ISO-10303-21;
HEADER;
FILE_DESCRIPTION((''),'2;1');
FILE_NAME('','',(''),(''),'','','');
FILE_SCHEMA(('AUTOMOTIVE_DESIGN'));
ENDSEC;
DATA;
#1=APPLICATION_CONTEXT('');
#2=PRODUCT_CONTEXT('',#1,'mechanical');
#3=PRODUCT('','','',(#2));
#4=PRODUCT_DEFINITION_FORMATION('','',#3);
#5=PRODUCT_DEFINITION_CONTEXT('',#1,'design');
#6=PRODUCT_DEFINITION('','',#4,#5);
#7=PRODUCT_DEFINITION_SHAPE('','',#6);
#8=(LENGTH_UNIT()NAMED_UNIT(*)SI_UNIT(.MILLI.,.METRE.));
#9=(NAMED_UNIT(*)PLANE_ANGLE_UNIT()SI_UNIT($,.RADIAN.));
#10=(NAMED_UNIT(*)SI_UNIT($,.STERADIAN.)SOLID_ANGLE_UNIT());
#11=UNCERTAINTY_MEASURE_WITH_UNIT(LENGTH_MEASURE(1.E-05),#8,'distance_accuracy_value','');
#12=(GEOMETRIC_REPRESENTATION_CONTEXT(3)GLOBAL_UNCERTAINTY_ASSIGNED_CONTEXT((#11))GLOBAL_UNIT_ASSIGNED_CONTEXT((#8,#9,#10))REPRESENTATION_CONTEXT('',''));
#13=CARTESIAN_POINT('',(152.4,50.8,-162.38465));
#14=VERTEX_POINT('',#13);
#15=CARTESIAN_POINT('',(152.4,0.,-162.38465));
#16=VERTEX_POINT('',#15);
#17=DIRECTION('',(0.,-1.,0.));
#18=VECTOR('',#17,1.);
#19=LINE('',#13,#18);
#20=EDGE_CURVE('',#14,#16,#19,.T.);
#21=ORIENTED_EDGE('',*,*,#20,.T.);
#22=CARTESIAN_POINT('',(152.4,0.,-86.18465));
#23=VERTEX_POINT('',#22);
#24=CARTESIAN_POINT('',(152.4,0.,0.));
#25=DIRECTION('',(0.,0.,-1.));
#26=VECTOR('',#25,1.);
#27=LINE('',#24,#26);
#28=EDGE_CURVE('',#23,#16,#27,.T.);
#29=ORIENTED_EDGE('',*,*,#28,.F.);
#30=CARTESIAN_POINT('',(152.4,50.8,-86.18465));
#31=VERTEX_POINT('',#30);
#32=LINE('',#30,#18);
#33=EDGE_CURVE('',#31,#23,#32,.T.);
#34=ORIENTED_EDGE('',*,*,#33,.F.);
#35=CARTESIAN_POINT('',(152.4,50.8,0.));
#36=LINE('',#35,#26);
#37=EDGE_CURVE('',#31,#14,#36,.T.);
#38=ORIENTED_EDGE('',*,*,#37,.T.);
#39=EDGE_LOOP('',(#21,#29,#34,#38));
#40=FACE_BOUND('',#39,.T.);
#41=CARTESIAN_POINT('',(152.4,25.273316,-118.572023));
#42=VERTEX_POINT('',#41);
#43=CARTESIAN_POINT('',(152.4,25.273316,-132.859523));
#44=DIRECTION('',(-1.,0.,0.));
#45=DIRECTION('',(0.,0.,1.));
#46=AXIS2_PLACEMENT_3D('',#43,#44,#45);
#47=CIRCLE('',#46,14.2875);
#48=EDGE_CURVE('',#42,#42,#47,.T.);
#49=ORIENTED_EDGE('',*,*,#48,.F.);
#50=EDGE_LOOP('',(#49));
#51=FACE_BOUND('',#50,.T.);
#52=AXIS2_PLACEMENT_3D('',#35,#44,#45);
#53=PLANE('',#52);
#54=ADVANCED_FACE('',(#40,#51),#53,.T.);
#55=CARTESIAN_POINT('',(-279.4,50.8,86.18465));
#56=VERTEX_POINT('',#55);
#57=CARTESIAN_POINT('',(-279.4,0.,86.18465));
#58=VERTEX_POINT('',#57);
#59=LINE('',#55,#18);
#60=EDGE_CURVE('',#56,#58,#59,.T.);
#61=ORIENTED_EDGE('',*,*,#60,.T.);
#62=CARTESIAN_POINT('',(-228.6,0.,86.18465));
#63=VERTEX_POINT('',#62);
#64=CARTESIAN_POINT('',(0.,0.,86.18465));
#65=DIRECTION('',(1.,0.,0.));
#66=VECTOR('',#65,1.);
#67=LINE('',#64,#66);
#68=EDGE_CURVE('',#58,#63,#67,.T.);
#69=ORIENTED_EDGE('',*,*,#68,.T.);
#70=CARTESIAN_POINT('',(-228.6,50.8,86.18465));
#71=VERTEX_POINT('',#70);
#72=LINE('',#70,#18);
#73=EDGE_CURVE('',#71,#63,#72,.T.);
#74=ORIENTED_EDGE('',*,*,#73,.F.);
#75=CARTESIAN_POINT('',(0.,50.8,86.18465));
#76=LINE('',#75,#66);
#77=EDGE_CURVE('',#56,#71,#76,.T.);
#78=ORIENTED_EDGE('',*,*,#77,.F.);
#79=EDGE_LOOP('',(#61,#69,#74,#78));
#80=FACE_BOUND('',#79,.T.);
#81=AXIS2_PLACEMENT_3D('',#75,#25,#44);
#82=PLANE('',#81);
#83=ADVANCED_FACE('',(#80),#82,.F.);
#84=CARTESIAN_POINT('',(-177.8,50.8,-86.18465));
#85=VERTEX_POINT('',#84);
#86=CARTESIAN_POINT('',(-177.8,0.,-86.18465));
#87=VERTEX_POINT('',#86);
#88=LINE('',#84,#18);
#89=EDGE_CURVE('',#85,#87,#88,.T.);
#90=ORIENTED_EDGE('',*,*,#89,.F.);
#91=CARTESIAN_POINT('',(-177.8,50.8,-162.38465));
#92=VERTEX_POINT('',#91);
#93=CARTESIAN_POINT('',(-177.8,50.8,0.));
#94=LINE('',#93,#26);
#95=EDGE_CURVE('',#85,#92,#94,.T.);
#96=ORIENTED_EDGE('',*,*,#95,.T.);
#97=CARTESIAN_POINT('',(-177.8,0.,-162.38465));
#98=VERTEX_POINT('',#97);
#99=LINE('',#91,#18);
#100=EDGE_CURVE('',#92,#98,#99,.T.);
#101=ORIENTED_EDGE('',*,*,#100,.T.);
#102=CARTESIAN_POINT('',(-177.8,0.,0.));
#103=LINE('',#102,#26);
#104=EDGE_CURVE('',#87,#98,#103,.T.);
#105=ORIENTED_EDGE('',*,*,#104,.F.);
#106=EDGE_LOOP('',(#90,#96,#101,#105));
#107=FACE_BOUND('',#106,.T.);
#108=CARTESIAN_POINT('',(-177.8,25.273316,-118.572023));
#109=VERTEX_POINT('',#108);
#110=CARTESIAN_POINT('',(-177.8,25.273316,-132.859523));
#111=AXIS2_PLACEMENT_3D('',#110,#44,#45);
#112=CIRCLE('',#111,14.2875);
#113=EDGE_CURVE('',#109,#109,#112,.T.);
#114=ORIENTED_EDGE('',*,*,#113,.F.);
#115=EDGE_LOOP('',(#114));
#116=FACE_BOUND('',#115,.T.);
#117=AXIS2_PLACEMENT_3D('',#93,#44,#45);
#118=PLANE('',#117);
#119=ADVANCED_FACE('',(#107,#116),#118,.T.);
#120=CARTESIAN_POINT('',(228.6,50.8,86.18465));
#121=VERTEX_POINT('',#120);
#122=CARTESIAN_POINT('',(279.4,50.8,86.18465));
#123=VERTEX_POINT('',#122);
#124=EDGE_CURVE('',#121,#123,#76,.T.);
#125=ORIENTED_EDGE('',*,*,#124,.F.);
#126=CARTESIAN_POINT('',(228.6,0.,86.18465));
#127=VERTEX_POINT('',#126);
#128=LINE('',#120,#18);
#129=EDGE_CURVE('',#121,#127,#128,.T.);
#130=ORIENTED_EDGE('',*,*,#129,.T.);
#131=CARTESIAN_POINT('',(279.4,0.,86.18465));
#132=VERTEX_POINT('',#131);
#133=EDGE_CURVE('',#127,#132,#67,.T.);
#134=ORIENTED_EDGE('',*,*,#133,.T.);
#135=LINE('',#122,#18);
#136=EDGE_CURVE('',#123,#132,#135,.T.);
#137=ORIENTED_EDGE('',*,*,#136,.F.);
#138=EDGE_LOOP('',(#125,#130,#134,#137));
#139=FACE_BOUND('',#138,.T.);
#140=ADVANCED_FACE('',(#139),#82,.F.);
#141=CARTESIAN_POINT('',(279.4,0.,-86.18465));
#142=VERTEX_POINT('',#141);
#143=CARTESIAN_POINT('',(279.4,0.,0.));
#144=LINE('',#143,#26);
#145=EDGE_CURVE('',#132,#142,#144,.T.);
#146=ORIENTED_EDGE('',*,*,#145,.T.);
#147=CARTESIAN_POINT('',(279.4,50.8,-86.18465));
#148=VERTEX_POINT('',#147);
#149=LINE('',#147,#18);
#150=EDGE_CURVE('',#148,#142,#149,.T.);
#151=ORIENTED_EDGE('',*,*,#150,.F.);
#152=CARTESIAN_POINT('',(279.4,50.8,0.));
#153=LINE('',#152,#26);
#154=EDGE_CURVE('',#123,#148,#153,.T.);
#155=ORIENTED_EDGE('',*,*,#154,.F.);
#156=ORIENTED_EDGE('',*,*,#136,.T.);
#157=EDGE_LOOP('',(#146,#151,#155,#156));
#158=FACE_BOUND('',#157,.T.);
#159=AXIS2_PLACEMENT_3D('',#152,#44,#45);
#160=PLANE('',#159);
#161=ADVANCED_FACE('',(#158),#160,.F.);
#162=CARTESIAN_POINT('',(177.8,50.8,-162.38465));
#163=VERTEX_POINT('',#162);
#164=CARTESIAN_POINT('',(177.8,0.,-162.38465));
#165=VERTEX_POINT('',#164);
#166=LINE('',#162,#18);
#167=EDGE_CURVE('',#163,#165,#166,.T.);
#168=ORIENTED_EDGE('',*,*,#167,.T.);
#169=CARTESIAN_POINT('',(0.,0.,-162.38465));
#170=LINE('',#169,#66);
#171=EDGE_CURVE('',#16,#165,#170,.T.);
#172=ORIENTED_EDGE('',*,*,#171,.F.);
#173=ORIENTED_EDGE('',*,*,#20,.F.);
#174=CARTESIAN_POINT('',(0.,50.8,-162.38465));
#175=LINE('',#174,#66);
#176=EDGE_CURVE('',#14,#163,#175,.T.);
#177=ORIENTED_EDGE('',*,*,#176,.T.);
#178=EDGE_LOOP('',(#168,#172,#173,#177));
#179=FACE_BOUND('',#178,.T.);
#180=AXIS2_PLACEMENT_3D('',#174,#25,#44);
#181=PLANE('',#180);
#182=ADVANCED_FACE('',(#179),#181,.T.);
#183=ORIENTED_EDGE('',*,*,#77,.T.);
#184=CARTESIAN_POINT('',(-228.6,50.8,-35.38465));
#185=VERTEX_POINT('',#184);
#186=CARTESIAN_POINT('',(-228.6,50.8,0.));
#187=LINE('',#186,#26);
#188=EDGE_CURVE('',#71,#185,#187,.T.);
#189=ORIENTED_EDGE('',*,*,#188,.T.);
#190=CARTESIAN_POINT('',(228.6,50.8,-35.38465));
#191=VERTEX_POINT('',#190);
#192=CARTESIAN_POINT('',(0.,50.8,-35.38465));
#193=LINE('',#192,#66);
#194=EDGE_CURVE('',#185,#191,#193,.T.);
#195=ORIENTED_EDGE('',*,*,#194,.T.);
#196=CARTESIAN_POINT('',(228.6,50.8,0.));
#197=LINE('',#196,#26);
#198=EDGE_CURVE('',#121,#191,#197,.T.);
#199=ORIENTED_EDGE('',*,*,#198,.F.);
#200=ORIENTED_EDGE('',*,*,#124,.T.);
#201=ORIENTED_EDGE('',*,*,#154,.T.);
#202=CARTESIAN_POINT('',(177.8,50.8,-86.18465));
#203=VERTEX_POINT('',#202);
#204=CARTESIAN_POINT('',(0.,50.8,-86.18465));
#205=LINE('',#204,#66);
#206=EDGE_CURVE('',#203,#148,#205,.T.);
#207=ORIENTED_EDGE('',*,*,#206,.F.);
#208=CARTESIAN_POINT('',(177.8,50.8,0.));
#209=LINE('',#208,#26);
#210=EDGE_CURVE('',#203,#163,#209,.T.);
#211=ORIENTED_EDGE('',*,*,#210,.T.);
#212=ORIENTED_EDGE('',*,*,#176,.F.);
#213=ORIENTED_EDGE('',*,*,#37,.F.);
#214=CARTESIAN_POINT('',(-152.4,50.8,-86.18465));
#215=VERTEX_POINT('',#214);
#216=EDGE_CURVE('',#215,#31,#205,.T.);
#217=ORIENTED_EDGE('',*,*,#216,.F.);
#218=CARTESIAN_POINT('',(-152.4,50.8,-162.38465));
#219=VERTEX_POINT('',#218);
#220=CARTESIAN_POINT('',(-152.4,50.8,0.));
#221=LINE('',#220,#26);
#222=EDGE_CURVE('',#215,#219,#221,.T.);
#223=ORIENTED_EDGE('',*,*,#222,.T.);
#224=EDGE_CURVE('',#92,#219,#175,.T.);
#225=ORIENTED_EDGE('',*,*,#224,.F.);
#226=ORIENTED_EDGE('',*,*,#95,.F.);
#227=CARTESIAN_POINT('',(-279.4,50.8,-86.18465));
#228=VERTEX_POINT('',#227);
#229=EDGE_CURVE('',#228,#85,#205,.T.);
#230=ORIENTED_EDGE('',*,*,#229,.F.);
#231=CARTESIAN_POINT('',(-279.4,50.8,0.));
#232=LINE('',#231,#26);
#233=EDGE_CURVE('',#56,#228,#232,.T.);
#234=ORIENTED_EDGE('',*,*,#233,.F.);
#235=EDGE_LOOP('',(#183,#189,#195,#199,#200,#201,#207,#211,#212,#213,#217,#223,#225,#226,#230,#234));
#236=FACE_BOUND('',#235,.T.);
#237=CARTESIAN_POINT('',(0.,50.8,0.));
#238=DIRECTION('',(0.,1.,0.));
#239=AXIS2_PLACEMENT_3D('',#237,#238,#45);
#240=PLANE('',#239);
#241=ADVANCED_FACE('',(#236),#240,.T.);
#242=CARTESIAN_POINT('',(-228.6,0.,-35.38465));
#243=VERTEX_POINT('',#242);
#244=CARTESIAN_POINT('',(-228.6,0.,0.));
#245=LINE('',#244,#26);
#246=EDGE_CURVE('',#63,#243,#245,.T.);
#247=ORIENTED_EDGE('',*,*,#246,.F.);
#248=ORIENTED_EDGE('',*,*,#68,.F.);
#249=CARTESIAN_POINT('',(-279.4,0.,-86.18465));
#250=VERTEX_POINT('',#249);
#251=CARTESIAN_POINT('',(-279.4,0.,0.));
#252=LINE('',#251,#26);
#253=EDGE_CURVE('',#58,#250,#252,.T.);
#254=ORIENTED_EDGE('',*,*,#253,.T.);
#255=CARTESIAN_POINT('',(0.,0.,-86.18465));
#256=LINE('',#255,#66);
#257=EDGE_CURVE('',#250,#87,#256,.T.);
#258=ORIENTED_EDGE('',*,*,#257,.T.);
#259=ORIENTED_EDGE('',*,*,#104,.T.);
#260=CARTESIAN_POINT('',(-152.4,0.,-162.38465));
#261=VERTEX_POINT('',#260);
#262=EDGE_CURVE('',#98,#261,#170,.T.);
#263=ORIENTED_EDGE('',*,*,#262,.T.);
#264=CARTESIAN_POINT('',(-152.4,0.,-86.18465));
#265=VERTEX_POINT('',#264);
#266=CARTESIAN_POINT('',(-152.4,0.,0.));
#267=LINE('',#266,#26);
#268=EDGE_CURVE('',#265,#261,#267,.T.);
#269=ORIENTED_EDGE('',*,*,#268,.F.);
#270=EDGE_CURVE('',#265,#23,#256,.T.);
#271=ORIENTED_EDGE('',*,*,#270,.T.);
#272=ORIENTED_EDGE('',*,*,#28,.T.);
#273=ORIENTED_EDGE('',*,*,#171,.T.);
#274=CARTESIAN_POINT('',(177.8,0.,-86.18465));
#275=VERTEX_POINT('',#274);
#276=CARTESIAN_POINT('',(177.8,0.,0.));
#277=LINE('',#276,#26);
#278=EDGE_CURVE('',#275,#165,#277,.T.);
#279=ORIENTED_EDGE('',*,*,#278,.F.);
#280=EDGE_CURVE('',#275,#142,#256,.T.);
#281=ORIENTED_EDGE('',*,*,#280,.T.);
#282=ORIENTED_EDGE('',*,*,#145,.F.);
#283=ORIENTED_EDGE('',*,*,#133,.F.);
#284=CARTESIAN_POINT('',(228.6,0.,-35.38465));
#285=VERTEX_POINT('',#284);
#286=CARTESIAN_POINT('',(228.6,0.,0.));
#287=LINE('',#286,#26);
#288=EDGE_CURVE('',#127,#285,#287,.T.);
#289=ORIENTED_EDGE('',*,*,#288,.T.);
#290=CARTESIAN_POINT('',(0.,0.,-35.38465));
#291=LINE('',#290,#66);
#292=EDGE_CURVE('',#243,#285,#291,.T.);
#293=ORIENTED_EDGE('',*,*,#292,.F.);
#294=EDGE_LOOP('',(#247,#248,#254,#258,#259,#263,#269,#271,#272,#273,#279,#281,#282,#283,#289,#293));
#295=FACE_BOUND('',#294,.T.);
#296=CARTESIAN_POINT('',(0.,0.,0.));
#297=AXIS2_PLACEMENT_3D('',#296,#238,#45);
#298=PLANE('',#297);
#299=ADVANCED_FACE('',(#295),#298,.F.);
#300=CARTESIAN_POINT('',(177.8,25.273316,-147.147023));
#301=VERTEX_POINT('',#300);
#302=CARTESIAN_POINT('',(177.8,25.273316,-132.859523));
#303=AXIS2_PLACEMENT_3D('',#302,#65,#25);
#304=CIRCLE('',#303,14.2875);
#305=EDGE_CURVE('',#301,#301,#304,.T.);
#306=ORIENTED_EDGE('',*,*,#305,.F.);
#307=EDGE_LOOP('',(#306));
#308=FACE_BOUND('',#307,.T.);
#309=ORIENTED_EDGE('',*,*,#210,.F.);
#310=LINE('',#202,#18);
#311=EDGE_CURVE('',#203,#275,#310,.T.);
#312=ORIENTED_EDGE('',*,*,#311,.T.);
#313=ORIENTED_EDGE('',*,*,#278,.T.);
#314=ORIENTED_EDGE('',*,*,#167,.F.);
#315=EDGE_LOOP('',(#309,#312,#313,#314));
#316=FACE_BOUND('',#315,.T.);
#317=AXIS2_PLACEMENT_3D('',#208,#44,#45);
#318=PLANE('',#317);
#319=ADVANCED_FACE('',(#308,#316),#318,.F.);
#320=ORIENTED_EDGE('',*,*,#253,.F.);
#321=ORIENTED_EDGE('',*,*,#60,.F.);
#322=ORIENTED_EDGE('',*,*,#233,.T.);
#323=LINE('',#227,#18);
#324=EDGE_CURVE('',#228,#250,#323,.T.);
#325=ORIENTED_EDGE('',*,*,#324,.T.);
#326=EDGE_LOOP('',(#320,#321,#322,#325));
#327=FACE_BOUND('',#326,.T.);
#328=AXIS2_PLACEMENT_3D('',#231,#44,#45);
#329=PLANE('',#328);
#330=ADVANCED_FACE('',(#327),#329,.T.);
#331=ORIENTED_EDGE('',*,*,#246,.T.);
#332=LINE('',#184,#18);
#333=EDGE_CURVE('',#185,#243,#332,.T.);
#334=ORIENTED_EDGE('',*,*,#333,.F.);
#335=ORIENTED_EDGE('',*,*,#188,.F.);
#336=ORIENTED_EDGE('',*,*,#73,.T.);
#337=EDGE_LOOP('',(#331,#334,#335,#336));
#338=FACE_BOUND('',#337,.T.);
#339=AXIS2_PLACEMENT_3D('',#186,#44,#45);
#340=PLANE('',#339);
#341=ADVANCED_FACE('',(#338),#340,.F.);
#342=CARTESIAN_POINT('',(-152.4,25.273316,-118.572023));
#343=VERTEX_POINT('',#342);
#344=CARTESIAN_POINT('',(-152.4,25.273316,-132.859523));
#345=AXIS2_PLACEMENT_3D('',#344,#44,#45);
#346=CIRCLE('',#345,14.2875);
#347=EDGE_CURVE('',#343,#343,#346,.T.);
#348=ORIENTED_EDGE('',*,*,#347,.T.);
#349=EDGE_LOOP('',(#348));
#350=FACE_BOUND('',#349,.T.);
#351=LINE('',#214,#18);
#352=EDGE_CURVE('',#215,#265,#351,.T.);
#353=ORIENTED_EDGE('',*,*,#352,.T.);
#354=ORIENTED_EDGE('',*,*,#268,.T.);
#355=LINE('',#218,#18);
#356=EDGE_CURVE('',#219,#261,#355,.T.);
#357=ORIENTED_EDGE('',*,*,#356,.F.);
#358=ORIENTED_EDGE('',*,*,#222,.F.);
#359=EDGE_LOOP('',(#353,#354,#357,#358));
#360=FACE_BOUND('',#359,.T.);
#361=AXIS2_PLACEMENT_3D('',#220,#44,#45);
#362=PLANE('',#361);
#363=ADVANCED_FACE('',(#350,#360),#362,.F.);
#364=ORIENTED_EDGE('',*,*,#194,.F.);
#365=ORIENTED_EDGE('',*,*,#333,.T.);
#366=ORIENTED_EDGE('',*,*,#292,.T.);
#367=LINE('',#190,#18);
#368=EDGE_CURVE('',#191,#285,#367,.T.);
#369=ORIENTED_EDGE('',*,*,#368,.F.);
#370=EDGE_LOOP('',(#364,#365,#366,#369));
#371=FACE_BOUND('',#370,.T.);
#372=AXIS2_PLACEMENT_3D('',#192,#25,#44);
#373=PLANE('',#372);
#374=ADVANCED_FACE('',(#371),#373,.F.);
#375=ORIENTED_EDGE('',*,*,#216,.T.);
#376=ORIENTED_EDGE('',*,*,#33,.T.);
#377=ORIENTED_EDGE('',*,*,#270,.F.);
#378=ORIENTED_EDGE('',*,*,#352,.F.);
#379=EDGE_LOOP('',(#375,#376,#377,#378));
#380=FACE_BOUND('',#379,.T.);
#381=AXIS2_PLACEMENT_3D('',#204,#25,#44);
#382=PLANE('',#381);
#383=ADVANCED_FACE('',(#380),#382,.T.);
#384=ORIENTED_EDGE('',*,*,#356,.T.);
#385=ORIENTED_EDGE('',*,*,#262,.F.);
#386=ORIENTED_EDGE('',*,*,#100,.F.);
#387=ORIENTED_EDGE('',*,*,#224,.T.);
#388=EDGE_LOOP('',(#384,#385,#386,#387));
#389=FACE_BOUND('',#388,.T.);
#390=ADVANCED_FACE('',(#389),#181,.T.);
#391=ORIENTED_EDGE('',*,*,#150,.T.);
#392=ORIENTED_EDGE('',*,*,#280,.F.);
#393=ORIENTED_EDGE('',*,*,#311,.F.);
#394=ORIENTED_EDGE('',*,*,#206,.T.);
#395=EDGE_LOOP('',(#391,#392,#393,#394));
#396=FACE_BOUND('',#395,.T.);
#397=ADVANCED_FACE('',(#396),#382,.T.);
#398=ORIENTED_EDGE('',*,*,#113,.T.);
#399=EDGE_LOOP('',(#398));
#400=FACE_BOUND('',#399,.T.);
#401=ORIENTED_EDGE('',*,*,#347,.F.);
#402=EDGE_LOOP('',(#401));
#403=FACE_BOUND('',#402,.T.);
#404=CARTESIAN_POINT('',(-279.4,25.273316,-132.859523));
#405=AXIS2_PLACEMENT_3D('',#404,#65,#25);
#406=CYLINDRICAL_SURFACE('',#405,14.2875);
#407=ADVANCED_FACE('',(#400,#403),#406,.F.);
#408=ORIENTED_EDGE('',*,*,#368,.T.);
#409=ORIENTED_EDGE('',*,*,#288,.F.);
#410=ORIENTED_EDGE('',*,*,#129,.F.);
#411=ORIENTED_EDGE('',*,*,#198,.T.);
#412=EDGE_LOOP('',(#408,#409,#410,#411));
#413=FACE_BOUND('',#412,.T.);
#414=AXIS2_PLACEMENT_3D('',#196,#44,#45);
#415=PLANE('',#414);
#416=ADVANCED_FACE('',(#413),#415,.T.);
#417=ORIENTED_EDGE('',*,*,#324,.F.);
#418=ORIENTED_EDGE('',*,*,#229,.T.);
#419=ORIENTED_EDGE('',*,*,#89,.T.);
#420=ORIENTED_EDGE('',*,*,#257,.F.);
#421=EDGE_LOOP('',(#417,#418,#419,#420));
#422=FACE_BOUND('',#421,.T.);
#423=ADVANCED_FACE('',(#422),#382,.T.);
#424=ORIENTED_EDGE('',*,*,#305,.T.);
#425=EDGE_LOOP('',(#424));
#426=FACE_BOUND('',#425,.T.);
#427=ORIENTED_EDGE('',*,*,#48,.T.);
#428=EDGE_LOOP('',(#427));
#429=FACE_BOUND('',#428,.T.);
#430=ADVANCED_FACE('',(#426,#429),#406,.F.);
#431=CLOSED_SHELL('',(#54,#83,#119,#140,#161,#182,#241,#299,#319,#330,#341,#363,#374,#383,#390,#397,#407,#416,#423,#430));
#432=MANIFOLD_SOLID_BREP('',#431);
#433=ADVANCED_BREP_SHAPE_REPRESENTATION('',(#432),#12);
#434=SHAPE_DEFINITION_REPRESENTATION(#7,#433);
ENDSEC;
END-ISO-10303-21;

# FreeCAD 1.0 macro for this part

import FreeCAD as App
import Part
import Sketcher

V = App.Vector
Q = App.Units.Quantity


def add_polygon(sketch, points):
    """Adds a closed chain of lines whose ends are joined by coincident constraints."""
    first, n = sketch.GeometryCount, len(points)
    for a, b in zip(points, points[1:] + points[:1]):
        sketch.addGeometry(Part.LineSegment(App.Vector(*a, 0), App.Vector(*b, 0)), False)
    for i in range(n):
        sketch.addConstraint(Sketcher.Constraint("Coincident", first + i, 2, first + (i + 1) % n, 1))

doc = App.newDocument("Part")
params = doc.addObject("Spreadsheet::Sheet", "Params")
for row, (alias, value) in enumerate([
    ("sketch1_width", "2 in"),
    ("sketch1_width2", "18 in"),
    ("sketch1_width3", "4 in"),
    ("sketch1_width4", "1 in"),
    ("sketch1_height", "3 in"),
    ("pad1_length", "2 in"),
    ("sketch2_diameter", "1.125 in"),
], start=1):
    params.set(f"A{row}", alias)
    params.set(f"B{row}", "=" + value)
    params.setAlias(f"B{row}", alias)

body = doc.addObject("PartDesign::Body", "Body")

sketch1 = body.newObject("Sketcher::SketchObject", "Sketch")
sketch1.AttachmentSupport = (doc.getObject("XZ_Plane"), [""])
sketch1.MapMode = "FlatFace"
add_polygon(sketch1, [(-279, -86), (-279, 86), (-229, 86), (-229, -35), (229, -35), (229, 86), (279, 86), (279, -86), (178, -86), (178, -162), (152, -162), (152, -86), (-152, -86), (-152, -162), (-178, -162), (-178, -86)])
sketch1.addConstraint([
    Sketcher.Constraint("Vertical", 0),
    Sketcher.Constraint("Horizontal", 1),
    Sketcher.Constraint("Vertical", 2),
    Sketcher.Constraint("Horizontal", 3),
    Sketcher.Constraint("Vertical", 4),
    Sketcher.Constraint("Horizontal", 5),
    Sketcher.Constraint("Vertical", 6),
    Sketcher.Constraint("Horizontal", 7),
    Sketcher.Constraint("Vertical", 8),
    Sketcher.Constraint("Horizontal", 9),
    Sketcher.Constraint("Vertical", 10),
    Sketcher.Constraint("Horizontal", 11),
    Sketcher.Constraint("Vertical", 12),
    Sketcher.Constraint("Horizontal", 13),
    Sketcher.Constraint("Vertical", 14),
    Sketcher.Constraint("Horizontal", 15),
    Sketcher.Constraint("Symmetric", 0, 2, 6, 2, -1, 1),
    Sketcher.Constraint("Symmetric", 1, 2, 4, 2, -2),
    Sketcher.Constraint("Symmetric", 9, 2, 12, 2, -2),
    Sketcher.Constraint("Symmetric", 7, 2, 14, 2, -2),
    Sketcher.Constraint("Horizontal", 7, 2, 10, 2),
    Sketcher.Constraint("DistanceX", 1, 1, 1, 2, Q("2 in")),
    Sketcher.Constraint("DistanceX", 3, 1, 3, 2, Q("18 in")),
    Sketcher.Constraint("DistanceX", 7, 2, 7, 1, Q("4 in")),
    Sketcher.Constraint("DistanceX", 9, 2, 9, 1, Q("1 in")),
    Sketcher.Constraint("DistanceY", 8, 2, 8, 1, Q("3 in")),
    Sketcher.Constraint("DistanceY", 6, 2, 3, 2, Q("2 in")),
    Sketcher.Constraint("DistanceY", 0, 1, 0, 2, Q("172.369301 mm")),
])
sketch1.setExpression("Constraints[37]", "Params.sketch1_width")
sketch1.setExpression("Constraints[38]", "Params.sketch1_width2")
sketch1.setExpression("Constraints[39]", "Params.sketch1_width3")
sketch1.setExpression("Constraints[40]", "Params.sketch1_width4")
sketch1.setExpression("Constraints[41]", "Params.sketch1_height")
pad1 = body.newObject("PartDesign::Pad", "Pad")
pad1.Profile = sketch1
pad1.setExpression("Length", "Params.pad1_length")
pad1.Reversed = True

sketch2 = body.newObject("Sketcher::SketchObject", "Sketch001")
sketch2.AttachmentSupport = (doc.getObject("YZ_Plane"), [""])
sketch2.MapMode = "FlatFace"
sketch2.AttachmentOffset = App.Placement(V(0, 0, 7 * 25.4), App.Rotation())
sketch2.addGeometry(Part.Circle(V(25, -133, 0), V(0, 0, 1), 14), False)
sketch2.addConstraint([
    Sketcher.Constraint("Diameter", 0, Q("1.125 in")),
    Sketcher.Constraint("DistanceX", -1, 1, 0, 3, Q("25.273316 mm")),
    Sketcher.Constraint("DistanceY", 0, 3, -1, 1, Q("132.859523 mm")),
])
sketch2.setExpression("Constraints[0]", "Params.sketch2_diameter")
pocket1 = body.newObject("PartDesign::Pocket", "Pocket")
pocket1.Profile = sketch2
pocket1.Type = "ThroughAll"

doc.recompute()
